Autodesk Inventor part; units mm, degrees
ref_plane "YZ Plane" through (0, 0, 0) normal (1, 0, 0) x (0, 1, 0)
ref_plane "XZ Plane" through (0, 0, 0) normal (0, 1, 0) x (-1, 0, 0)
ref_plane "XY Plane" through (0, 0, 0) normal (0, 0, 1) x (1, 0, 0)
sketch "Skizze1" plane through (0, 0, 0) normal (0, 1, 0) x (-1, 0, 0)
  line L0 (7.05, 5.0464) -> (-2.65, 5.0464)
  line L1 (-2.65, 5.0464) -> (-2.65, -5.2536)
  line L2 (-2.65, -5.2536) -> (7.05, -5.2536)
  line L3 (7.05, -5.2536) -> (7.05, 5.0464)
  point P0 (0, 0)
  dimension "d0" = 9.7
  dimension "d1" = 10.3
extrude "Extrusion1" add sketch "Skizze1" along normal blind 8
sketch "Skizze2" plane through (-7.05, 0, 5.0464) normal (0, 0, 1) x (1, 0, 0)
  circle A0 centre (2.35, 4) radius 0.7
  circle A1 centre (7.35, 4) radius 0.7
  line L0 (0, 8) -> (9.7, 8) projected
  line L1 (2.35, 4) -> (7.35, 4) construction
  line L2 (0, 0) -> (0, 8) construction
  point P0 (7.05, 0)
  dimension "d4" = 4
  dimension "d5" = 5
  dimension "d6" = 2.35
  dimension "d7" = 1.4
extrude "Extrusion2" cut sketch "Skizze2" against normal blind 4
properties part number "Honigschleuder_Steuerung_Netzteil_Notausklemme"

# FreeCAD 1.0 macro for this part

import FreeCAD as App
import Part
import Sketcher
from FreeCAD import Vector

doc = App.newDocument("Part")
body = doc.addObject("PartDesign::Body", "Body")

# Sketch on XZ plane
sketch1 = body.newObject("Sketcher::SketchObject", "Sketch")
sketch1.AttachmentSupport = (doc.getObject("XZ_Plane"), [""])
sketch1.MapMode = "FlatFace"
sketch1.addGeometry([
    Part.LineSegment(Vector(-7, -5, 0), Vector(-7, 5, 0)),
    Part.LineSegment(Vector(-7, 5, 0), Vector(3, 5, 0)),
    Part.LineSegment(Vector(3, 5, 0), Vector(3, -5, 0)),
    Part.LineSegment(Vector(3, -5, 0), Vector(-7, -5, 0)),
], False)
sketch1.addConstraint([
    Sketcher.Constraint("Coincident", 0, 2, 1, 1),
    Sketcher.Constraint("Coincident", 1, 2, 2, 1),
    Sketcher.Constraint("Coincident", 2, 2, 3, 1),
    Sketcher.Constraint("Coincident", 3, 2, 0, 1),
    Sketcher.Constraint("Vertical", 0),
    Sketcher.Constraint("Horizontal", 1),
    Sketcher.Constraint("Vertical", 2),
    Sketcher.Constraint("Horizontal", 3),
    Sketcher.Constraint("DistanceX", 1, 1, 1, 2, 9.7),
    Sketcher.Constraint("DistanceY", 0, 1, 0, 2, 10.3),
    Sketcher.Constraint("DistanceX", 0, 2, -1, 1, 7.05),
    Sketcher.Constraint("DistanceY", -1, 1, 0, 2, 5.0464),
])
pad1 = body.newObject("PartDesign::Pad", "Pad")
pad1.Profile = sketch1
pad1.Length = 8
pad1.Reversed = True

# Sketch on XY plane
sketch2 = body.newObject("Sketcher::SketchObject", "Sketch001")
sketch2.AttachmentSupport = (doc.getObject("XY_Plane"), [""])
sketch2.MapMode = "FlatFace"
sketch2.AttachmentOffset = App.Placement(Vector(0, 0, 5.0464), App.Rotation())
sketch2.addGeometry([
    Part.Circle(Vector(-4.7, 4, 0), Vector(0, 0, 1), 0.7),
    Part.Circle(Vector(0.3, 4, 0), Vector(0, 0, 1), 0.7),
], False)
sketch2.addConstraint([
    Sketcher.Constraint("Equal", 0, 1),
    Sketcher.Constraint("Horizontal", 0, 3, 1, 3),
    Sketcher.Constraint("Diameter", 0, 1.4),
    Sketcher.Constraint("DistanceY", -1, 1, 0, 3, 4.0),
    Sketcher.Constraint("DistanceX", 0, 3, 1, 3, 5.0),
    Sketcher.Constraint("DistanceX", 0, 3, -1, 1, 4.7),
])
pocket1 = body.newObject("PartDesign::Pocket", "Pocket")
pocket1.Profile = sketch2
pocket1.Length = 4

doc.recompute()
